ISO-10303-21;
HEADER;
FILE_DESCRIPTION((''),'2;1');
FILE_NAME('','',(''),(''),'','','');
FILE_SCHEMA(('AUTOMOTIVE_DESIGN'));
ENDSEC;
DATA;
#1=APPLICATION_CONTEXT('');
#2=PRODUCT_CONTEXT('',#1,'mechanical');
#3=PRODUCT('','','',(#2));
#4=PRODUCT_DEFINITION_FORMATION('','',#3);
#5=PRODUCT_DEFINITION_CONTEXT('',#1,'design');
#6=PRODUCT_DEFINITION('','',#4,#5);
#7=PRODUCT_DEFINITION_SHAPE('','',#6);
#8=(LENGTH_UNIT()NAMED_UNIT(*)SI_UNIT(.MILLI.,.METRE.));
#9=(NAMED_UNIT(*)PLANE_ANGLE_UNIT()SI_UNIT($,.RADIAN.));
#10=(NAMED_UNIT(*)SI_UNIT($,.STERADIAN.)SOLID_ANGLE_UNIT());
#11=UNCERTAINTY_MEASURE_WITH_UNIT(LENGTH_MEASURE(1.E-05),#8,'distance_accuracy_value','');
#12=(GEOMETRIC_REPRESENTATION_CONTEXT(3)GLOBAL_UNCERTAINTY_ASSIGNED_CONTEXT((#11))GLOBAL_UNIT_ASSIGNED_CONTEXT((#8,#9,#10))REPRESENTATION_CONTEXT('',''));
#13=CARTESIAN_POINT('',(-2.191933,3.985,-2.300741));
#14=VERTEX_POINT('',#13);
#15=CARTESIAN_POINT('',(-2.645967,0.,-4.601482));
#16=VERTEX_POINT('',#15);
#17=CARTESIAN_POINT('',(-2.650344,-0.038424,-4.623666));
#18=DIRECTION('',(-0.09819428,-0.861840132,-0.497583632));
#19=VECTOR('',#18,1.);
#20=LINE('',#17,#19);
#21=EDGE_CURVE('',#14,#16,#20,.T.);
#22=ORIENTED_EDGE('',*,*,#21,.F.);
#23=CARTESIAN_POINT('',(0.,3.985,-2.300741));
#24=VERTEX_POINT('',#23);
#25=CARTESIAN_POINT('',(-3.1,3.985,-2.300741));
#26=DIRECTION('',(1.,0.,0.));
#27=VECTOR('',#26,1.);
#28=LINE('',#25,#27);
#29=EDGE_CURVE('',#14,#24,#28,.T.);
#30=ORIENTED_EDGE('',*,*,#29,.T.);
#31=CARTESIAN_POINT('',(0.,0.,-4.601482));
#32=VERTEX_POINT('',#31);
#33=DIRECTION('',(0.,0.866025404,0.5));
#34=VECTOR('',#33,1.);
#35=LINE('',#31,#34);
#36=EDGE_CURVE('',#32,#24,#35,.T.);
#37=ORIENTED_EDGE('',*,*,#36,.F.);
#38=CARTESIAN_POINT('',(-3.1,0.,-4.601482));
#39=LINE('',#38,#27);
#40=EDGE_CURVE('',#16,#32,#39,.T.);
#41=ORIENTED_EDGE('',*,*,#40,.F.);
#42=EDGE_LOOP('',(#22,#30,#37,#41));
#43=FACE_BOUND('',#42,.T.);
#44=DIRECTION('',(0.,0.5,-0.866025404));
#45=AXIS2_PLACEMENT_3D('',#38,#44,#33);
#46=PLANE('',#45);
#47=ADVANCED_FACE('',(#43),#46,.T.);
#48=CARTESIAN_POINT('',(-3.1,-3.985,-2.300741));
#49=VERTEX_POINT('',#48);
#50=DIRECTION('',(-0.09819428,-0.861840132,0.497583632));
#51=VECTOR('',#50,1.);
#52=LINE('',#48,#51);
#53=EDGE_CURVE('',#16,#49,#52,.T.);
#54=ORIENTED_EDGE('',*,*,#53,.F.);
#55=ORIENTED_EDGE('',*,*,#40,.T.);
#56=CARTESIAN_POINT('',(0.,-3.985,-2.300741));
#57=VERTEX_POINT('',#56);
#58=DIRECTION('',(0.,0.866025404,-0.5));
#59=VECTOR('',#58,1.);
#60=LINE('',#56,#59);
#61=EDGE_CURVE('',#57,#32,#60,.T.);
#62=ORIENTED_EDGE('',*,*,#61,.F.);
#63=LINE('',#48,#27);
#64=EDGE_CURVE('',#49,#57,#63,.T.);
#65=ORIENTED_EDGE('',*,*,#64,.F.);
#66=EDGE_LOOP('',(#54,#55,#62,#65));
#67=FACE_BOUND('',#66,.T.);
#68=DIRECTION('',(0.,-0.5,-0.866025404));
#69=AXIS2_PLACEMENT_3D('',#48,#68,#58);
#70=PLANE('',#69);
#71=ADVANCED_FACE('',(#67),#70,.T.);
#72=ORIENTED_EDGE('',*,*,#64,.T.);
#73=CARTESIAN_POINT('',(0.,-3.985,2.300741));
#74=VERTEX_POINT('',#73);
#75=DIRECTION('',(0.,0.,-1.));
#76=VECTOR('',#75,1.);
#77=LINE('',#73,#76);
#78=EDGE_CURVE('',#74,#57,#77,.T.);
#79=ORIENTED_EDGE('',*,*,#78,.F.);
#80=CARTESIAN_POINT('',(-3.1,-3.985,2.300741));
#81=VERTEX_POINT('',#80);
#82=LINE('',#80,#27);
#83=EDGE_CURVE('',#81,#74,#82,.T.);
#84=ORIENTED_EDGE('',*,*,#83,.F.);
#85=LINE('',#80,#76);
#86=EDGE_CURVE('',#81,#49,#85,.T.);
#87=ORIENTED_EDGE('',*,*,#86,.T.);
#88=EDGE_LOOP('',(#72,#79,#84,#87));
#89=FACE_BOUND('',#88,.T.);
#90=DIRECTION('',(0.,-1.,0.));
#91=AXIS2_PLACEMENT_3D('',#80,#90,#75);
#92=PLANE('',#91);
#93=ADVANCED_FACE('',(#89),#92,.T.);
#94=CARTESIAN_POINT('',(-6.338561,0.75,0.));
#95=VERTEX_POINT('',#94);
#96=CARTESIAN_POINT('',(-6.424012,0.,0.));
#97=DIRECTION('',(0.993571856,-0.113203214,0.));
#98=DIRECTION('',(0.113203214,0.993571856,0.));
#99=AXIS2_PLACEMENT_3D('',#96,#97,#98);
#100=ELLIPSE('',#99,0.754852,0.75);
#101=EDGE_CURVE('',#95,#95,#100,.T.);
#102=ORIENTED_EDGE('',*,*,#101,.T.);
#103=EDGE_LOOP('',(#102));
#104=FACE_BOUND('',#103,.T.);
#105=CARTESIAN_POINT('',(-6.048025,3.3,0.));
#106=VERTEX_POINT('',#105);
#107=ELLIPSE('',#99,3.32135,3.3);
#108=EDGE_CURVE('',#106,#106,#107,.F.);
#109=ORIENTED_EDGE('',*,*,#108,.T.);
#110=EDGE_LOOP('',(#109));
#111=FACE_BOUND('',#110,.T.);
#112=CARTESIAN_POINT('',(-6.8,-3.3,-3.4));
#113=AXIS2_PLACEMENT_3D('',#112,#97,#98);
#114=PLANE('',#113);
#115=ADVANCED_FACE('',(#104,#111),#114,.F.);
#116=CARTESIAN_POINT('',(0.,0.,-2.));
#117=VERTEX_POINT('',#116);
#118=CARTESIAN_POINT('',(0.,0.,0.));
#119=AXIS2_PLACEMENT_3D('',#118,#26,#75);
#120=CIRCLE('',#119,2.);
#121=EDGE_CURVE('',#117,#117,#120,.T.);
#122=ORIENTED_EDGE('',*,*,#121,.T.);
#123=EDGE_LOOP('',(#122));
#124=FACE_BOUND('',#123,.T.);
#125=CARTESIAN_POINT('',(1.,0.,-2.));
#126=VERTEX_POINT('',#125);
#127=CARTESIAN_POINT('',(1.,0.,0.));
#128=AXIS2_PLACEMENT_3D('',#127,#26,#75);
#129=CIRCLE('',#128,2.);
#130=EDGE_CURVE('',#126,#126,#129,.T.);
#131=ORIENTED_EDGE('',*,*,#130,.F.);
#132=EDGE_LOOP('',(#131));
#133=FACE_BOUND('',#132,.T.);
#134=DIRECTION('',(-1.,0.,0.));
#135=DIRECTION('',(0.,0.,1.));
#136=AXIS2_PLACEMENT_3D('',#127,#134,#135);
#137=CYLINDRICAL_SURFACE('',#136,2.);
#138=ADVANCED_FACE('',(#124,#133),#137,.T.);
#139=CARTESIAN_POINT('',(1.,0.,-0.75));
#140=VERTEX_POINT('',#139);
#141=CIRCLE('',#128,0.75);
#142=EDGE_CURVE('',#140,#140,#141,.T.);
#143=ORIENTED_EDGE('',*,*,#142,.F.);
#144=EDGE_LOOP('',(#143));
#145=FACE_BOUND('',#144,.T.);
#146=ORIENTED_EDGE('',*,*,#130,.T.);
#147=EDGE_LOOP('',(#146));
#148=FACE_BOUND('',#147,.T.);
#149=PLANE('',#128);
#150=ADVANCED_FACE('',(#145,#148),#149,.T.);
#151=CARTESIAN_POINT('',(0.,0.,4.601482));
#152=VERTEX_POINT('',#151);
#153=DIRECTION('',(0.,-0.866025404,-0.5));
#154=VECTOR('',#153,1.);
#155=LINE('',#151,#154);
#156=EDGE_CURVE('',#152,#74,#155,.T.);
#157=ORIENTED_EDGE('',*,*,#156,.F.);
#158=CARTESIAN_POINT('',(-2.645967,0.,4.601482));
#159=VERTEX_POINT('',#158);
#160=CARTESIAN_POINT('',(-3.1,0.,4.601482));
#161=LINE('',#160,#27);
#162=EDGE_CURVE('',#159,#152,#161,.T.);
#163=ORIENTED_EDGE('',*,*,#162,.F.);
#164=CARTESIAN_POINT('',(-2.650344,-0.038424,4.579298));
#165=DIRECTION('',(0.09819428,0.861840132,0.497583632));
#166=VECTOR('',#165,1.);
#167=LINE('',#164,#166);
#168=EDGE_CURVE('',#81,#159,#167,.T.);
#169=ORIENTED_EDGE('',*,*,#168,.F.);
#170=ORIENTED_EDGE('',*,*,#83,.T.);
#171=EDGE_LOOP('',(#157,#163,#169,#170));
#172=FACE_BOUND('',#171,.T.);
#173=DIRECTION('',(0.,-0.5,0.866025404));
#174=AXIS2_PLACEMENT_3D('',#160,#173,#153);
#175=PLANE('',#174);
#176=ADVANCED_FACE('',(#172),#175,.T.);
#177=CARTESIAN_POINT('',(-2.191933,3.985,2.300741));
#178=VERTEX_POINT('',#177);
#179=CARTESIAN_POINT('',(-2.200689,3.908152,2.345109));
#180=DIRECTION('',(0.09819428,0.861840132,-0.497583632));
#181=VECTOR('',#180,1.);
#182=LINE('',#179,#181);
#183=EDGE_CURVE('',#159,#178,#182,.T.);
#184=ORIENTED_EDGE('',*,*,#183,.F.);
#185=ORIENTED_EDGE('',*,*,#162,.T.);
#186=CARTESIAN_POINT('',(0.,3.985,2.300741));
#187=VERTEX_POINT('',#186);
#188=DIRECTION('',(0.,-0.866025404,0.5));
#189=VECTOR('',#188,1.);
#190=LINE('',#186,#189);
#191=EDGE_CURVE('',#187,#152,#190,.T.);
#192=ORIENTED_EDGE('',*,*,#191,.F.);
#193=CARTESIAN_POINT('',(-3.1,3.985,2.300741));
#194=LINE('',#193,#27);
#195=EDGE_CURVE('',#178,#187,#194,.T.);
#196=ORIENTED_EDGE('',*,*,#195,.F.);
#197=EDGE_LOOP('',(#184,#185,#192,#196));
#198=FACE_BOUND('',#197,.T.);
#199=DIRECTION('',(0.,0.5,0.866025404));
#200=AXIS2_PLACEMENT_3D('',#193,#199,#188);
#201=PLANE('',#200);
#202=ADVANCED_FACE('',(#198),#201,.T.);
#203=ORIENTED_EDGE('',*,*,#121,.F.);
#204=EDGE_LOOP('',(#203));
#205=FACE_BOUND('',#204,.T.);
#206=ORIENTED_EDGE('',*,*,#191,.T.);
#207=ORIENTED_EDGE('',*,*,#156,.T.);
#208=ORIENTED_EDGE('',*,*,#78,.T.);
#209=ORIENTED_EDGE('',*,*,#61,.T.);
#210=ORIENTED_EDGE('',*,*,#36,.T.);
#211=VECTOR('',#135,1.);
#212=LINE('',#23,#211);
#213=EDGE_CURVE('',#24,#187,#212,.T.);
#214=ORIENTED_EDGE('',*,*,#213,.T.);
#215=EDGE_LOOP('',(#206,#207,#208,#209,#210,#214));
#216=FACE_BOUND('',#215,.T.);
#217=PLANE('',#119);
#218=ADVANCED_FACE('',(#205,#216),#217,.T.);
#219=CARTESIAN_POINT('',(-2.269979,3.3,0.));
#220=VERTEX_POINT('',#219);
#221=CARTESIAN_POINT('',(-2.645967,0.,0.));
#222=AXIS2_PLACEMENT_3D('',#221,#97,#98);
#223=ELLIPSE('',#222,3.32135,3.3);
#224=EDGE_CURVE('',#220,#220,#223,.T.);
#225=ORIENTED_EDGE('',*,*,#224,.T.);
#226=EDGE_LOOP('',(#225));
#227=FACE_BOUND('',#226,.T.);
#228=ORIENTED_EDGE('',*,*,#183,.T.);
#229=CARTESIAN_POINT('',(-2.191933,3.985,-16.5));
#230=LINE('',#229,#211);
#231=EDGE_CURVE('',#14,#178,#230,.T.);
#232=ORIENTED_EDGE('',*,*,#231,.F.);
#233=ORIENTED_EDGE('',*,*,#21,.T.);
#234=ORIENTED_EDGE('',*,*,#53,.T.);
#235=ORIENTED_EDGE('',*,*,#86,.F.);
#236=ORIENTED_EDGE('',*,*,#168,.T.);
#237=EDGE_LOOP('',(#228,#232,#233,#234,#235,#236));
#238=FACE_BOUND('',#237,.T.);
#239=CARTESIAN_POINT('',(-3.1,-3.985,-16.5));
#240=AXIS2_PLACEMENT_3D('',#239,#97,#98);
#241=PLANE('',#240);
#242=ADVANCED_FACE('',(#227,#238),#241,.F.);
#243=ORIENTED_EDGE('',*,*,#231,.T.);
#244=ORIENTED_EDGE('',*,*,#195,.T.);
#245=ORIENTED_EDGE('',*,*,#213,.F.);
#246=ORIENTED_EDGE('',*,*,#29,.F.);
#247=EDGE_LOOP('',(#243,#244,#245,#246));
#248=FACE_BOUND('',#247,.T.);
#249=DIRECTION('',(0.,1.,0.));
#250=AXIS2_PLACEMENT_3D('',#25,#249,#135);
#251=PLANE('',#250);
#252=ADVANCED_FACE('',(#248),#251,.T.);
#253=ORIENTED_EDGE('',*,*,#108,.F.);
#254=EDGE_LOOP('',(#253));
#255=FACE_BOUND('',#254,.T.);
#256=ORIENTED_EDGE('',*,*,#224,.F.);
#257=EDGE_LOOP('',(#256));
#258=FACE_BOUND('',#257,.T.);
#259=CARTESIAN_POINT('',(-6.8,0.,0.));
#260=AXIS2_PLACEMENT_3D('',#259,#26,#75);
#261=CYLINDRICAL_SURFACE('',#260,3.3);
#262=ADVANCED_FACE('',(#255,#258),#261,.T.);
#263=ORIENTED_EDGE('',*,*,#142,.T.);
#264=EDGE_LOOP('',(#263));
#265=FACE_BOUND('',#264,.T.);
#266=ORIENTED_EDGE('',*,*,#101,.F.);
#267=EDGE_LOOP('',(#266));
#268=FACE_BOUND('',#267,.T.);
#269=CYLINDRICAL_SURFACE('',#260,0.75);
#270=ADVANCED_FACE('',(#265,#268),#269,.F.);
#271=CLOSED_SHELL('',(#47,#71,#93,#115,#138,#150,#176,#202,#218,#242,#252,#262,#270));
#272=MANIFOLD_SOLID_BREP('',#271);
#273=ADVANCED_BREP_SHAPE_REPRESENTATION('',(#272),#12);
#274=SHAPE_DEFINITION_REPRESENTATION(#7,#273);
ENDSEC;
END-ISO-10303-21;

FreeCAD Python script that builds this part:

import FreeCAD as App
import Part
import Sketcher
Q = App.Units.Quantity


def add_polygon(sketch, points):
    """Adds a closed chain of lines whose ends are joined by coincident constraints."""
    first, n = sketch.GeometryCount, len(points)
    for a, b in zip(points, points[1:] + points[:1]):
        sketch.addGeometry(Part.LineSegment(App.Vector(*a, 0), App.Vector(*b, 0)), False)
    for i in range(n):
        sketch.addConstraint(Sketcher.Constraint("Coincident", first + i, 2, first + (i + 1) % n, 1))

doc = App.newDocument("Part")
body = doc.addObject("PartDesign::Body", "Body")

# Sketch on YZ plane
sketch1 = body.newObject("Sketcher::SketchObject", "Sketch")
sketch1.AttachmentSupport = (doc.getObject("YZ_Plane"), [""])
sketch1.MapMode = "FlatFace"
add_polygon(sketch1, [(0, 4.6), (-4, 2.3), (-4, -2.3), (0, -4.6), (4, -2.3), (4, 2.3)])  # lines 0-5
sketch1.addConstraint([
    Sketcher.Constraint("Vertical", 1),
    Sketcher.Constraint("Vertical", 4),
    Sketcher.Constraint("Symmetric", 0, 2, 3, 2, -1, 1),
    Sketcher.Constraint("Symmetric", 2, 2, 5, 2, -1, 1),
    Sketcher.Constraint("PointOnObject", 2, 2, -2),
    Sketcher.Constraint("Parallel", 2, 5),
    Sketcher.Constraint("Horizontal", 1, 2, 3, 2),
    Sketcher.Constraint("Angle", 0, Q("-150 deg")),
    Sketcher.Constraint("DistanceX", 1, 2, 3, 2, Q("7.97 mm")),
    Sketcher.Constraint("DistanceY", 1, 2, 1, 1, Q("4.601482 mm")),
])
pad1 = body.newObject("PartDesign::Pad", "Pad")
pad1.Profile = sketch1
pad1.Length = 3.1
pad1.Reversed = True

# Sketch on XY plane
sketch2 = body.newObject("Sketcher::SketchObject", "Sketch001")
sketch2.AttachmentSupport = (doc.getObject("XY_Plane"), [""])
sketch2.MapMode = "FlatFace"
add_polygon(sketch2, [(-3.1, -4), (-2.2, 4), (-3.5, 4)])  # lines 0-2
sketch2.addConstraint([
    Sketcher.Constraint("Horizontal", 1),
    Sketcher.Constraint("Angle", 0, Q("83.5 deg")),
    Sketcher.Constraint("DistanceX", 2, 2, -1, 1, Q("3.1 mm")),
    Sketcher.Constraint("DistanceX", 1, 2, 1, 1, Q("1.335999 mm")),
    Sketcher.Constraint("DistanceY", 2, 2, 1, 2, Q("7.97 mm")),
    Sketcher.Constraint("DistanceY", -1, 1, 0, 2, Q("3.985 mm")),
])
pocket1 = body.newObject("PartDesign::Pocket", "Pocket")
pocket1.Profile = sketch2
pocket1.Length = 33
pocket1.Midplane = True

# Sketch on YZ plane
sketch3 = body.newObject("Sketcher::SketchObject", "Sketch002")
sketch3.AttachmentSupport = (doc.getObject("YZ_Plane"), [""])
sketch3.MapMode = "FlatFace"
sketch3.addGeometry(Part.Circle(App.Vector(0, 0, 0), App.Vector(0, 0, 1), 3.3), False)
sketch3.addConstraint([
    Sketcher.Constraint("Coincident", 0, 3, -1, 1),
    Sketcher.Constraint("Diameter", 0, Q("6.6 mm")),
])
pad2 = body.newObject("PartDesign::Pad", "Pad001")
pad2.Profile = sketch3
pad2.Length = 6.8
pad2.Reversed = True

# Sketch on XY plane
sketch4 = body.newObject("Sketcher::SketchObject", "Sketch003")
sketch4.AttachmentSupport = (doc.getObject("XY_Plane"), [""])
sketch4.MapMode = "FlatFace"
add_polygon(sketch4, [(-6.8, -3.3), (-6, 3.3), (-6.8, 3.3)])  # lines 0-2
sketch4.addConstraint([
    Sketcher.Constraint("Horizontal", 1),
    Sketcher.Constraint("Vertical", 2),
    Sketcher.Constraint("DistanceY", 2, 2, 2, 1, Q("6.6 mm")),
    Sketcher.Constraint("Angle", 0, Q("83.5 deg")),
    Sketcher.Constraint("DistanceY", -1, 1, 0, 2, Q("3.3 mm")),
    Sketcher.Constraint("DistanceX", 1, 2, -1, 1, Q("6.8 mm")),
])
pocket2 = body.newObject("PartDesign::Pocket", "Pocket001")
pocket2.Profile = sketch4
pocket2.Length = 6.8
pocket2.Midplane = True

# Sketch on YZ plane
sketch5 = body.newObject("Sketcher::SketchObject", "Sketch004")
sketch5.AttachmentSupport = (doc.getObject("YZ_Plane"), [""])
sketch5.MapMode = "FlatFace"
sketch5.addGeometry(Part.Circle(App.Vector(0, 0, 0), App.Vector(0, 0, 1), 2), False)
sketch5.addConstraint([
    Sketcher.Constraint("Coincident", 0, 3, -1, 1),
    Sketcher.Constraint("Diameter", 0, Q("4 mm")),
])
pad3 = body.newObject("PartDesign::Pad", "Pad002")
pad3.Profile = sketch5
pad3.Length = 1

# Sketch on YZ plane
sketch6 = body.newObject("Sketcher::SketchObject", "Sketch005")
sketch6.AttachmentSupport = (doc.getObject("YZ_Plane"), [""])
sketch6.MapMode = "FlatFace"
sketch6.AttachmentOffset = App.Placement(App.Vector(0, 0, 1), App.Rotation())
sketch6.addGeometry(Part.Circle(App.Vector(0, 0, 0), App.Vector(0, 0, 1), 0.8), False)
sketch6.addConstraint([
    Sketcher.Constraint("Coincident", 0, 3, -1, 1),
    Sketcher.Constraint("Diameter", 0, Q("1.5 mm")),
])
pocket3 = body.newObject("PartDesign::Pocket", "Pocket002")
pocket3.Profile = sketch6
pocket3.Type = "ThroughAll"

doc.recompute()
